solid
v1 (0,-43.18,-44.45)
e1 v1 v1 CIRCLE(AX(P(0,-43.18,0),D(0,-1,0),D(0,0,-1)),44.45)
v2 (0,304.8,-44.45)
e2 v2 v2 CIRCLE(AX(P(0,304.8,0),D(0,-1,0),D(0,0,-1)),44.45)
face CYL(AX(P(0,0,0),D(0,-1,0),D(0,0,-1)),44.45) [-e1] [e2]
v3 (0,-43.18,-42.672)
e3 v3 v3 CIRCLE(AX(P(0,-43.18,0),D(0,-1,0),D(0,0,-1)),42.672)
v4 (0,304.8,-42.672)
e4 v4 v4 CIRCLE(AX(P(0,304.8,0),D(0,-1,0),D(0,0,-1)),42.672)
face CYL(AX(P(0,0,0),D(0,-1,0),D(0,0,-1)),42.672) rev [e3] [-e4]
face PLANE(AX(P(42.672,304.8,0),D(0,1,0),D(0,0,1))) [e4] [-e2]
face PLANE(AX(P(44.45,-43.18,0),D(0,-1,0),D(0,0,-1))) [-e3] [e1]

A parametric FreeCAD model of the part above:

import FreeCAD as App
import Part
import Sketcher

V = App.Vector
Q = App.Units.Quantity


def add_polygon(sketch, points):
    """Adds a closed chain of lines whose ends are joined by coincident constraints."""
    first, n = sketch.GeometryCount, len(points)
    for a, b in zip(points, points[1:] + points[:1]):
        sketch.addGeometry(Part.LineSegment(App.Vector(*a, 0), App.Vector(*b, 0)), False)
    for i in range(n):
        sketch.addConstraint(Sketcher.Constraint("Coincident", first + i, 2, first + (i + 1) % n, 1))

doc = App.newDocument("Part")
body = doc.addObject("PartDesign::Body", "Body")

sketch1 = doc.addObject("Sketcher::SketchObject", "Sketch")
body.addObject(sketch1)
sketch1.AttachmentSupport = (doc.XY_Plane, [""])
sketch1.MapMode = "FlatFace"
add_polygon(sketch1, [(42.672, 304.8), (42.672, -43.18), (44.45, -43.18), (44.45, 304.8)])
sketch1.addConstraint([
    Sketcher.Constraint("Vertical", 0),
    Sketcher.Constraint("Horizontal", 1),
    Sketcher.Constraint("Vertical", 2),
    Sketcher.Constraint("Horizontal", 3),
    Sketcher.Constraint("DistanceY", 0, 2, 0, 1, Q("13.7 in")),
    Sketcher.Constraint("DistanceY", -1, 1, 2, 2, Q("12 in")),
    Sketcher.Constraint("DistanceX", 1, 1, 1, 2, Q("0.07 in")),
    Sketcher.Constraint("DistanceX", -1, 1, 0, 2, Q("1.68 in")),
])
revolution = doc.addObject("PartDesign::Revolution", "Revolution")
body.addObject(revolution)
revolution.Profile = sketch1
revolution.ReferenceAxis = (sketch1, ["V_Axis"])
revolution.Angle = 360

doc.recompute()
